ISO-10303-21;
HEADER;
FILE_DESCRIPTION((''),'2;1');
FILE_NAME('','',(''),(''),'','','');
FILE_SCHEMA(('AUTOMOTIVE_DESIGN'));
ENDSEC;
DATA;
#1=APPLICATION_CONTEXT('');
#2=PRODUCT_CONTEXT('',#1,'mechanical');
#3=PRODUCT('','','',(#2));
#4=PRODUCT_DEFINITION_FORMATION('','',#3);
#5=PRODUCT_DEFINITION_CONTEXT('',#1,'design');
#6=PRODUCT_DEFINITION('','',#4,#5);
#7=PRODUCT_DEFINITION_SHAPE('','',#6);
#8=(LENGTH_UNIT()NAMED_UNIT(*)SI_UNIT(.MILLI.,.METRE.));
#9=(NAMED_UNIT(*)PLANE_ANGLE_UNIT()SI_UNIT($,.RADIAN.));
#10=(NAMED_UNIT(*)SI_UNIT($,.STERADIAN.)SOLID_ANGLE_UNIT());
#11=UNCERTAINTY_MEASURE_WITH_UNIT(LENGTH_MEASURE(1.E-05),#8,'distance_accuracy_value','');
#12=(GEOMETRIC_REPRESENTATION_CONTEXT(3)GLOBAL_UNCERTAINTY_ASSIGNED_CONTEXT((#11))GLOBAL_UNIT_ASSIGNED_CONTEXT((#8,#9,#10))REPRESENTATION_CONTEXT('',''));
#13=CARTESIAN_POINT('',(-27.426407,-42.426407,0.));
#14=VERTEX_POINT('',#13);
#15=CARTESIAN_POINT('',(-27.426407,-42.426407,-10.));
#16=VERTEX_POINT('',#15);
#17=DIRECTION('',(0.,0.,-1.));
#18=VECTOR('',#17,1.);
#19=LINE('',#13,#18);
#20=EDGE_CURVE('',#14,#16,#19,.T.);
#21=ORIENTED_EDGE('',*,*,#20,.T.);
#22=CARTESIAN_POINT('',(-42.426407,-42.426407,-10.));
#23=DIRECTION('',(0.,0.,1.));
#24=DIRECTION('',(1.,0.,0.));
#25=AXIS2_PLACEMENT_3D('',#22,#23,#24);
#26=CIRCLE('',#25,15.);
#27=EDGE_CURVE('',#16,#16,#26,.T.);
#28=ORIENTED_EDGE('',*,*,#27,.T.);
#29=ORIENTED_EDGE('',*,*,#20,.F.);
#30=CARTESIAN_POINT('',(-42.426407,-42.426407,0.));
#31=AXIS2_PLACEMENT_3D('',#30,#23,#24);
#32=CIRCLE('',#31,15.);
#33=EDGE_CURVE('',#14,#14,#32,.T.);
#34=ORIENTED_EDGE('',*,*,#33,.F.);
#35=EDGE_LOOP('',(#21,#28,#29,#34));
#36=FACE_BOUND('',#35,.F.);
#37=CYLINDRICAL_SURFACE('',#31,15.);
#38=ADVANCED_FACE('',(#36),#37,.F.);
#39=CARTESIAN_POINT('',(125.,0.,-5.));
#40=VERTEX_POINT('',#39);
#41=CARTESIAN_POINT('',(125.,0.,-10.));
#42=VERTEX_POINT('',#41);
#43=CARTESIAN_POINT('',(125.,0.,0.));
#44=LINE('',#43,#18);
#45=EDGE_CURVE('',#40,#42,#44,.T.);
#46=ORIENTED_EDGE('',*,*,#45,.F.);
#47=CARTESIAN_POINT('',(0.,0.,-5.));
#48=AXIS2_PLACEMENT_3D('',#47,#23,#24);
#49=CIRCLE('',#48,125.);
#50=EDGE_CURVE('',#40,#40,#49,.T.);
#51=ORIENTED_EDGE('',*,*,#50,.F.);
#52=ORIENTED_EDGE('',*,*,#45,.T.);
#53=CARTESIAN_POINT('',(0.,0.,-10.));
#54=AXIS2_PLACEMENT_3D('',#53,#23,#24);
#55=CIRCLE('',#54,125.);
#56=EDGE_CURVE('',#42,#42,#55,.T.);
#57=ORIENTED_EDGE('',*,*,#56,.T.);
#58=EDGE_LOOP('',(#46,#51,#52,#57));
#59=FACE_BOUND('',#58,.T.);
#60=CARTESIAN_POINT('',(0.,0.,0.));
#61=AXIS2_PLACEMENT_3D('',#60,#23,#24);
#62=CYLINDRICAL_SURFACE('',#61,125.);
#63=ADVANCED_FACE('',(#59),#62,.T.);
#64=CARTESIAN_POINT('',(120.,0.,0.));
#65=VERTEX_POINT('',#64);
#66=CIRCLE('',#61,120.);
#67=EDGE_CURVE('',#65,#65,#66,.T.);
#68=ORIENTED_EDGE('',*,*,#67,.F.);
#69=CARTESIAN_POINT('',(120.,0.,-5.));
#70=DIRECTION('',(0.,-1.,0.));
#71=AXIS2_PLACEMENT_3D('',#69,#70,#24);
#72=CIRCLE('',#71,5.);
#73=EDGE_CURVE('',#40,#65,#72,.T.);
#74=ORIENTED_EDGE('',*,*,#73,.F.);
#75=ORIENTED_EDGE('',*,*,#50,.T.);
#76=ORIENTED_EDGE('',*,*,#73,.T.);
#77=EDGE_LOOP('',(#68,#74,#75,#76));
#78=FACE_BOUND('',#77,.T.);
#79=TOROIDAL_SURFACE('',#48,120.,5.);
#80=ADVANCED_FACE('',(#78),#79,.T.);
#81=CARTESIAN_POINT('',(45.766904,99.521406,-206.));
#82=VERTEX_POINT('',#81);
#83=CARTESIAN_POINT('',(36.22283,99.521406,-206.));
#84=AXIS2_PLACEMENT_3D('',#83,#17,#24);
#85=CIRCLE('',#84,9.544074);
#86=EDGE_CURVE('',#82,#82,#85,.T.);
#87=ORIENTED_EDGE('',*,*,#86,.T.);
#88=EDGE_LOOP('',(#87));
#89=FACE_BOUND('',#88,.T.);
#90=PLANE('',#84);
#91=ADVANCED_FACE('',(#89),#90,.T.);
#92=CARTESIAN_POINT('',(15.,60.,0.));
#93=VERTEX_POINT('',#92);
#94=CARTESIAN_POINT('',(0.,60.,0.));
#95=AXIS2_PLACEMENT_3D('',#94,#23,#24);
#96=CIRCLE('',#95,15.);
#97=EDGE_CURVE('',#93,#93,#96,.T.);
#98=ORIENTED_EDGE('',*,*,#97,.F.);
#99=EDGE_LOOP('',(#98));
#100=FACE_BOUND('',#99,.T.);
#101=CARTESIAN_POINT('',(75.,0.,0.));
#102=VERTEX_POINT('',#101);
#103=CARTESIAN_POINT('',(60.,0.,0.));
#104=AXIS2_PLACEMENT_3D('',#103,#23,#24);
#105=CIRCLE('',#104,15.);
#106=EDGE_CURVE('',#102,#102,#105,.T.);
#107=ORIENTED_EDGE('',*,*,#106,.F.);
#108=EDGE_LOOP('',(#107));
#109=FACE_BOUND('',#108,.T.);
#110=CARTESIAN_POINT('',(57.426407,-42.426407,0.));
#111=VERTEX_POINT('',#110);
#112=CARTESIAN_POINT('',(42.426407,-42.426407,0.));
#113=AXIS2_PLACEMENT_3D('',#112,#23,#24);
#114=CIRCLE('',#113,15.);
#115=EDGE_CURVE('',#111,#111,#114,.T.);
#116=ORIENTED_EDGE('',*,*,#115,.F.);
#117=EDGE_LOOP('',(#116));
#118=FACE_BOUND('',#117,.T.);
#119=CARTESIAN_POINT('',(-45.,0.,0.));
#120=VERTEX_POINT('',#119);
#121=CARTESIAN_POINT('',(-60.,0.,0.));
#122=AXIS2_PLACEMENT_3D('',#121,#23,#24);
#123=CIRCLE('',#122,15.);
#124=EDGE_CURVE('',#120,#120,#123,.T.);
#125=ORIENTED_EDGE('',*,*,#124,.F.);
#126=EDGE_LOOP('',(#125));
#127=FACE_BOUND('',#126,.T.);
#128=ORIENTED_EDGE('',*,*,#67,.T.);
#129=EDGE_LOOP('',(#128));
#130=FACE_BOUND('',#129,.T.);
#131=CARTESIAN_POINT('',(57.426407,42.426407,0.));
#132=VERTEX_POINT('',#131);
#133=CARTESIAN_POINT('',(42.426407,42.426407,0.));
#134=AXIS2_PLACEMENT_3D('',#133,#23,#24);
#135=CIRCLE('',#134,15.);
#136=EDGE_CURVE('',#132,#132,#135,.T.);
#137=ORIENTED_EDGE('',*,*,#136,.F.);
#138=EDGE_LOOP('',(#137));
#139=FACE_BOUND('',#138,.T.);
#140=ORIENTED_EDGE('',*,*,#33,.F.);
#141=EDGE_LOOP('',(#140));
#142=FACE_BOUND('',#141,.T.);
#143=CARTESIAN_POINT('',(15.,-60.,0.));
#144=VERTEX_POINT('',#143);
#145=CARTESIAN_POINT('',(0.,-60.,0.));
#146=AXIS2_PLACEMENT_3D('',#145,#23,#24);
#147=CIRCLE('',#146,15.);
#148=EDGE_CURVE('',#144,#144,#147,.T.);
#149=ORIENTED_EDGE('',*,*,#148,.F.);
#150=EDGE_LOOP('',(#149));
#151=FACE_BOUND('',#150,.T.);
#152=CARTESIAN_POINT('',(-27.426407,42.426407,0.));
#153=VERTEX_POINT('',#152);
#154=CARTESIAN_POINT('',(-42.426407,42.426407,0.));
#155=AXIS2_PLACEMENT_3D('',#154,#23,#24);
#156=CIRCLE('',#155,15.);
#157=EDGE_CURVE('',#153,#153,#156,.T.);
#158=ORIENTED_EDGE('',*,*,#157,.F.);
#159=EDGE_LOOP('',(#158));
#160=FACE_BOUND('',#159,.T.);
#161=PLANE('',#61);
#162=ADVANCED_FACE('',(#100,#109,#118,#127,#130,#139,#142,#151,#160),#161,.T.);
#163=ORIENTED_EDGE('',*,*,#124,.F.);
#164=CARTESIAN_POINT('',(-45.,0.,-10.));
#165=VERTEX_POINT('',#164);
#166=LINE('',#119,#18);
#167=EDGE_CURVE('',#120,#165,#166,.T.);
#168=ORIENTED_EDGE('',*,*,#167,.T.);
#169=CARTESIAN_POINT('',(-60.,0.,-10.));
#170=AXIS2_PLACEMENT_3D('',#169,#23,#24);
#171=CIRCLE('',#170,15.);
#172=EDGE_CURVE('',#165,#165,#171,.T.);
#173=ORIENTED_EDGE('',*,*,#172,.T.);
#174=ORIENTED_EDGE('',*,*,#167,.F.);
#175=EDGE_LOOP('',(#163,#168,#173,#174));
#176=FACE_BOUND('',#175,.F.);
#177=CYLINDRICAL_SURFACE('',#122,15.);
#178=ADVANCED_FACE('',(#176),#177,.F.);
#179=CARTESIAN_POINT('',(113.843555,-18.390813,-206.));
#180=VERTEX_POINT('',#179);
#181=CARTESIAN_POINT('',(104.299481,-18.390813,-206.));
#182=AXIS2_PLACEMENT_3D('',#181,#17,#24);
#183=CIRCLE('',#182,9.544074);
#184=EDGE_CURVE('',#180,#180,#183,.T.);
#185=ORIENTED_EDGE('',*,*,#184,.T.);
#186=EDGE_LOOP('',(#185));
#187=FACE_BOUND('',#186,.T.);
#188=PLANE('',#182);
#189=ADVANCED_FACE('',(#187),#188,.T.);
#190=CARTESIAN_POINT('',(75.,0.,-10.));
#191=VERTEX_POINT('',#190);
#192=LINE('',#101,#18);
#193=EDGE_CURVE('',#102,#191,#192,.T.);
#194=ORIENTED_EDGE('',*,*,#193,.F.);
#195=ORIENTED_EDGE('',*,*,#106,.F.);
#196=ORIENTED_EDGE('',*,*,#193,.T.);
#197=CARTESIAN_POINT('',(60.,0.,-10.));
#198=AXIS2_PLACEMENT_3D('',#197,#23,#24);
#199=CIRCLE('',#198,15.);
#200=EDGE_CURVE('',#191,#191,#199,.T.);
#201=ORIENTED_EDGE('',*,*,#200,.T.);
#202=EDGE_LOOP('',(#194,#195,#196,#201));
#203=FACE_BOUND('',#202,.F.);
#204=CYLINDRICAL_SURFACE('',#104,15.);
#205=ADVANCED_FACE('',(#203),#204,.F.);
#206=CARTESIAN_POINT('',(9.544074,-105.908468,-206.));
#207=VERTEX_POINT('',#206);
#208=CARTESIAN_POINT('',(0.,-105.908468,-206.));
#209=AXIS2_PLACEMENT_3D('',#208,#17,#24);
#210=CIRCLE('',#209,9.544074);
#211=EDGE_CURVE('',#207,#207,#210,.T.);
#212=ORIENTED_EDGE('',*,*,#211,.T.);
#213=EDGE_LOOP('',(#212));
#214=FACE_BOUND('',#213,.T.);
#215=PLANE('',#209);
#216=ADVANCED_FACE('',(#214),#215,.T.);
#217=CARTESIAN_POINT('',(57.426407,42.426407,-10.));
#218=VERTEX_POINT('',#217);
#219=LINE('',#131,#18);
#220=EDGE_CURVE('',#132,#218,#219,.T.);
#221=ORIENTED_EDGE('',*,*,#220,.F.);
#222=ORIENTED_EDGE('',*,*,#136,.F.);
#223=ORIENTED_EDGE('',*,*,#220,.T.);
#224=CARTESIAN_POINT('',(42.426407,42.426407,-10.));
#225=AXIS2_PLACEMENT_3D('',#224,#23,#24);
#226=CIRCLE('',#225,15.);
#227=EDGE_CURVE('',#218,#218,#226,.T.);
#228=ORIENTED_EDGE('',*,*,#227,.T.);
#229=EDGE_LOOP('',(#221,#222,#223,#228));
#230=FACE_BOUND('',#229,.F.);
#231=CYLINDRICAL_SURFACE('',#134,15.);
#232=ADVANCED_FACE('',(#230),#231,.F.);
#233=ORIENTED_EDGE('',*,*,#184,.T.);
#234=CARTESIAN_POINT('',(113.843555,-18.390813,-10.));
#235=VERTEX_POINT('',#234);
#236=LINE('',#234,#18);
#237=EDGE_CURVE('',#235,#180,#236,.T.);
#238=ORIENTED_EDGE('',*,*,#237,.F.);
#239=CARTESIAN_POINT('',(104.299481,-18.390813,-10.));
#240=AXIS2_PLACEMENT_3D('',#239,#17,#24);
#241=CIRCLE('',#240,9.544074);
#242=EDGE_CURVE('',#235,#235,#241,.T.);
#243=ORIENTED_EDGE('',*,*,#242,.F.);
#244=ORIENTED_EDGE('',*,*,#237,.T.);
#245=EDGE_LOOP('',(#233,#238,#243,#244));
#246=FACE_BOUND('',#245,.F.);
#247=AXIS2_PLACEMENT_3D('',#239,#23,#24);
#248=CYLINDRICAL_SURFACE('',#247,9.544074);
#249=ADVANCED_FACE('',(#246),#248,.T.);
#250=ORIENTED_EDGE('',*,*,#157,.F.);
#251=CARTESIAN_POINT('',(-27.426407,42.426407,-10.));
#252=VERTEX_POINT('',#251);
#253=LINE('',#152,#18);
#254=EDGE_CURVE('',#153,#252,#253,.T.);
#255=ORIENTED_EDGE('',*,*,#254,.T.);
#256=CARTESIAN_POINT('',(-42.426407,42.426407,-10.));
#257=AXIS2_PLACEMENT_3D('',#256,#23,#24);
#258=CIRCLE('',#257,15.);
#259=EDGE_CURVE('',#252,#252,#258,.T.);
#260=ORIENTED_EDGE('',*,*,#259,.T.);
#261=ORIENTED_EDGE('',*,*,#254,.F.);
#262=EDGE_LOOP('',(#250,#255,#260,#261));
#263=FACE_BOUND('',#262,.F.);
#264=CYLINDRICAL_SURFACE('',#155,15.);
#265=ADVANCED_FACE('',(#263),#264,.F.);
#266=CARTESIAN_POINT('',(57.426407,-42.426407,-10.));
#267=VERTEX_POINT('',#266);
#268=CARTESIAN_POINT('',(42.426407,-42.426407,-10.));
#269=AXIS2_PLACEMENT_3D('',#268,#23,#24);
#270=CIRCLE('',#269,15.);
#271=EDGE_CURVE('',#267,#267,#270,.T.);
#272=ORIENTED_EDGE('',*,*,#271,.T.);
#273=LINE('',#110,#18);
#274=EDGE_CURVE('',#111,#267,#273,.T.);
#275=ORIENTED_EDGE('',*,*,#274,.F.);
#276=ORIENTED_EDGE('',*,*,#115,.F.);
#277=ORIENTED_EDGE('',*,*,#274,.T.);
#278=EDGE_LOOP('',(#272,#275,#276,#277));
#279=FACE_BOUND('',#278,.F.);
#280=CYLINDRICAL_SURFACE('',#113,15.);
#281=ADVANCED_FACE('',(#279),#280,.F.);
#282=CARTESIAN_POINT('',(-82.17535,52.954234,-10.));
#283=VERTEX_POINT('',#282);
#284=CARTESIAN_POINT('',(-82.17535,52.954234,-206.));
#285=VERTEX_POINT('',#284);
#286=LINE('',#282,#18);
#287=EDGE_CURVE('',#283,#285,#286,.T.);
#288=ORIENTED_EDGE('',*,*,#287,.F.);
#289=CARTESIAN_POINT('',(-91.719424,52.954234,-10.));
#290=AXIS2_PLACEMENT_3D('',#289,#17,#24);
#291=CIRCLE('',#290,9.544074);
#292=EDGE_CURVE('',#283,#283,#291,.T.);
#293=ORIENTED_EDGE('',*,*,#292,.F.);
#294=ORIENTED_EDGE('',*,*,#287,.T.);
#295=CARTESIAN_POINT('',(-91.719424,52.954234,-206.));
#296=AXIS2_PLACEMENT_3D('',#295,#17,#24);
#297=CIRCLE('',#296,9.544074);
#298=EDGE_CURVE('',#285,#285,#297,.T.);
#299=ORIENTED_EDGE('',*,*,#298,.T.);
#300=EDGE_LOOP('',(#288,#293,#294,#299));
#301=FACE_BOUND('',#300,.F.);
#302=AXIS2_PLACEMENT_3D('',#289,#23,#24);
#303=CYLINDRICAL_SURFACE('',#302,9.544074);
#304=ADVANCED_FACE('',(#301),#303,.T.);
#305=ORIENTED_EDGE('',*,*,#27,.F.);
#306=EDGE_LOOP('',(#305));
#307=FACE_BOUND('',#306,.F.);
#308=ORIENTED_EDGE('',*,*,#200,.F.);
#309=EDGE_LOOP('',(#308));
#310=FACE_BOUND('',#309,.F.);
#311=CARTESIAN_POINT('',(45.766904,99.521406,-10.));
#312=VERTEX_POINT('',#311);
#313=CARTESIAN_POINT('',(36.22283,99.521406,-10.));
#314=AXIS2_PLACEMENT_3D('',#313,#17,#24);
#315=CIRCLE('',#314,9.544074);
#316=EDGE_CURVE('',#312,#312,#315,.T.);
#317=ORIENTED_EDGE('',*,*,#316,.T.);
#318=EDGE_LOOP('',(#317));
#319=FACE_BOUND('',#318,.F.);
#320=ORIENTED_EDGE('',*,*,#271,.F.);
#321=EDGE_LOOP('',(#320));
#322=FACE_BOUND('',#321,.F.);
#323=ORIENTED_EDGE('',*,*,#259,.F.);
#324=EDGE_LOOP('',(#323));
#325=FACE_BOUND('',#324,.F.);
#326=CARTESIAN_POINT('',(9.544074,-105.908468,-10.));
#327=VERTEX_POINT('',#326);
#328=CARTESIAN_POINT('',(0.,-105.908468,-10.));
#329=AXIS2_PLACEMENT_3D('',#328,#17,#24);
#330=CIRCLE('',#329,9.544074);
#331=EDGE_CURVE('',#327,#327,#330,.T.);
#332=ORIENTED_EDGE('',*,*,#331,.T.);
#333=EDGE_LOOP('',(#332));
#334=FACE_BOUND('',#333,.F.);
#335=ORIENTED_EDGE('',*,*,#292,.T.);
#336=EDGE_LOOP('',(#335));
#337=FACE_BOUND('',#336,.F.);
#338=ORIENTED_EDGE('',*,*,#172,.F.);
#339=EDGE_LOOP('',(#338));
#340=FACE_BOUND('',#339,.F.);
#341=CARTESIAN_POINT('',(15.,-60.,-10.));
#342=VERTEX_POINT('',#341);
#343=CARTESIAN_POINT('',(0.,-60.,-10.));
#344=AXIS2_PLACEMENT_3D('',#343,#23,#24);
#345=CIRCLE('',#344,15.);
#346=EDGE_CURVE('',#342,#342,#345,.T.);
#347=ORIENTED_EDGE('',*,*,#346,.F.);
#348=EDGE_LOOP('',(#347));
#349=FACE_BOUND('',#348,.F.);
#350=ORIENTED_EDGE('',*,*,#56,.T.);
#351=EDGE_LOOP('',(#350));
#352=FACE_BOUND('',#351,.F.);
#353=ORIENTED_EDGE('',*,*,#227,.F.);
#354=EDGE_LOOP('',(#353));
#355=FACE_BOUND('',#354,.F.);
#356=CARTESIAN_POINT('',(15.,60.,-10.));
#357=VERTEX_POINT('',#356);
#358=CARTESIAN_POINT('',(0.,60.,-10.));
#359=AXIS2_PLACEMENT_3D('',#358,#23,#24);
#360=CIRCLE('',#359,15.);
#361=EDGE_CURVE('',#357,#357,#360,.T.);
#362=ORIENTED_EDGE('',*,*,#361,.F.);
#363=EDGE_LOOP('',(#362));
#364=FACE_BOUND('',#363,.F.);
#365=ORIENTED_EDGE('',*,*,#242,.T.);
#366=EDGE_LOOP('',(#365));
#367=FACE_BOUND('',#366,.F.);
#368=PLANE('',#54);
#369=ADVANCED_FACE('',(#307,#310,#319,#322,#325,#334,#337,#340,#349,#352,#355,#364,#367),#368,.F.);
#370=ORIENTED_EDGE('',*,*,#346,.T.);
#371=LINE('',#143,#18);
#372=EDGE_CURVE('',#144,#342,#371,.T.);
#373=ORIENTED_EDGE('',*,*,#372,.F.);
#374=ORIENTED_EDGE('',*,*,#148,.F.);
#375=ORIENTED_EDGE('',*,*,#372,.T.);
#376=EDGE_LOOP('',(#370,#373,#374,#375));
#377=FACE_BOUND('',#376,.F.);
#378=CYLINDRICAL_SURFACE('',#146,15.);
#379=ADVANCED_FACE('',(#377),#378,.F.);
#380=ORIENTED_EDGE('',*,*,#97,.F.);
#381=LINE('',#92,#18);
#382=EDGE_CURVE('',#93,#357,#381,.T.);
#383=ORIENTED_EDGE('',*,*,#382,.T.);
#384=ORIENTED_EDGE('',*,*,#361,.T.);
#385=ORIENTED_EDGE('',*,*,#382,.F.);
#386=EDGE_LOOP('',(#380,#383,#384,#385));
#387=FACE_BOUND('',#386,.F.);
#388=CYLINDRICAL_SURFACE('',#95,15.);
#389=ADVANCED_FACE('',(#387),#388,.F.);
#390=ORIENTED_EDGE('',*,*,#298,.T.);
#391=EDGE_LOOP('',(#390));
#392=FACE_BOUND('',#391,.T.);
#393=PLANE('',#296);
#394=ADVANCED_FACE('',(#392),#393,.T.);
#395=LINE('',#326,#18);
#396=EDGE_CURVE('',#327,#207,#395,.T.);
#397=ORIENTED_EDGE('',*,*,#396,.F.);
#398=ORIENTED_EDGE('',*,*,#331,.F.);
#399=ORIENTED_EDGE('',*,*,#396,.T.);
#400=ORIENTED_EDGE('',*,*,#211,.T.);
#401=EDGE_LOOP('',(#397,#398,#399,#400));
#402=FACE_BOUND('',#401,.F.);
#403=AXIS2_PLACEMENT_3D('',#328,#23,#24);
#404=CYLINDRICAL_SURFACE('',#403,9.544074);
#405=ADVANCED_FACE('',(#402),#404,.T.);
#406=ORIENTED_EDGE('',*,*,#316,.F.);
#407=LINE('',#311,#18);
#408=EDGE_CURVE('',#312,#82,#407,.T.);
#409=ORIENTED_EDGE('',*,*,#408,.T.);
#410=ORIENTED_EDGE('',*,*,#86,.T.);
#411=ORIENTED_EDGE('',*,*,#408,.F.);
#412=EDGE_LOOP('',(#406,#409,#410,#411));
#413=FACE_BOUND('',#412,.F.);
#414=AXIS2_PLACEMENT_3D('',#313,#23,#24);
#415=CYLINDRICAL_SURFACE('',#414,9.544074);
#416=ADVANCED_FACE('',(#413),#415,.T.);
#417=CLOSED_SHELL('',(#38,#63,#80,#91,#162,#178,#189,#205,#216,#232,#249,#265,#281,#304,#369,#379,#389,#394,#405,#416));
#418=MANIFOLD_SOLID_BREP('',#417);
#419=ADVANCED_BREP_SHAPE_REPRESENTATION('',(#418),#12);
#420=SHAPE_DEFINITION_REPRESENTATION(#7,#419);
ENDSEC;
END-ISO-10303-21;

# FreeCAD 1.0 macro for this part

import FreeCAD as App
import Part
import Sketcher
from FreeCAD import Vector


def edges_at(feature, points):
    """Names of the edges that pass closest to the given points."""
    edges = feature.Shape.Edges
    near = lambda p: min(range(len(edges)), key=lambda i: edges[i].distToShape(Part.Vertex(*p))[0])
    return sorted({f"Edge{near(p) + 1}" for p in points})

doc = App.newDocument("Part")
body = doc.addObject("PartDesign::Body", "Body")

sketch1 = body.newObject("Sketcher::SketchObject", "Sketch")
sketch1.AttachmentSupport = (doc.getObject("XY_Plane"), [""])
sketch1.MapMode = "FlatFace"
sketch1.addGeometry(Part.Circle(Vector(0, 0, 0), Vector(0, 0, 1), 125), False)
sketch1.addConstraint([
    Sketcher.Constraint("Coincident", 0, 3, -1, 1),
    Sketcher.Constraint("Diameter", 0, 250.0),
])
pad1 = body.newObject("PartDesign::Pad", "Pad")
pad1.Profile = sketch1
pad1.Length = 10
pad1.Reversed = True

sketch2 = body.newObject("Sketcher::SketchObject", "Sketch001")
sketch2.AttachmentSupport = (doc.getObject("XY_Plane"), [""])
sketch2.MapMode = "FlatFace"
sketch2.addGeometry([
    Part.Circle(Vector(-42, 42, 0), Vector(0, 0, 1), 15),
    Part.Circle(Vector(0, 60, 0), Vector(0, 0, 1), 15),
    Part.Circle(Vector(42, 42, 0), Vector(0, 0, 1), 15),
    Part.Circle(Vector(60, 0, 0), Vector(0, 0, 1), 15),
    Part.Circle(Vector(42, -42, 0), Vector(0, 0, 1), 15),
    Part.Circle(Vector(0, -60, 0), Vector(0, 0, 1), 15),
    Part.Circle(Vector(-42, -42, 0), Vector(0, 0, 1), 15),
    Part.Circle(Vector(-60, 0, 0), Vector(0, 0, 1), 15),
], False)
sketch2.addConstraint([
    Sketcher.Constraint("Equal", 0, 1),
    Sketcher.Constraint("Equal", 1, 2),
    Sketcher.Constraint("Equal", 2, 3),
    Sketcher.Constraint("Equal", 3, 4),
    Sketcher.Constraint("Equal", 4, 5),
    Sketcher.Constraint("Equal", 5, 6),
    Sketcher.Constraint("Equal", 6, 7),
    Sketcher.Constraint("Symmetric", 0, 3, 4, 3, -1, 1),
    Sketcher.Constraint("Symmetric", 1, 3, 5, 3, -1, 1),
    Sketcher.Constraint("Symmetric", 2, 3, 6, 3, -1, 1),
    Sketcher.Constraint("Symmetric", 3, 3, 7, 3, -1, 1),
    Sketcher.Constraint("Symmetric", 0, 3, 2, 3, -2),
    Sketcher.Constraint("PointOnObject", 1, 3, -2),
    Sketcher.Constraint("PointOnObject", 3, 3, -1),
    Sketcher.Constraint("Diameter", 0, 30.0),
    Sketcher.Constraint("DistanceY", -1, 1, 1, 3, 60.0),
    Sketcher.Constraint("DistanceX", -1, 1, 3, 3, 60.0),
    Sketcher.Constraint("DistanceX", 0, 3, -1, 1, 42.426407),
    Sketcher.Constraint("DistanceY", -1, 1, 0, 3, 42.426407),
])
pocket1 = body.newObject("PartDesign::Pocket", "Pocket")
pocket1.Profile = sketch2
pocket1.Length = 10
doc.recompute()

fillet = body.newObject("PartDesign::Fillet", "Fillet")
fillet.Base = (pocket1, edges_at(pocket1, [(-125, 0, 0)]))
fillet.Radius = 5

sketch3 = body.newObject("Sketcher::SketchObject", "Sketch002")
sketch3.AttachmentSupport = (doc.getObject("XY_Plane"), [""])
sketch3.MapMode = "FlatFace"
sketch3.AttachmentOffset = App.Placement(Vector(0, 0, -10), App.Rotation())
sketch3.addGeometry([
    Part.Circle(Vector(0, -106, 0), Vector(0, 0, 1), 10),
    Part.Circle(Vector(104, -18, 0), Vector(0, 0, 1), 10),
    Part.Circle(Vector(36, 100, 0), Vector(0, 0, 1), 10),
    Part.Circle(Vector(-92, 53, 0), Vector(0, 0, 1), 10),
], False)
sketch3.addConstraint([
    Sketcher.Constraint("Equal", 0, 1),
    Sketcher.Constraint("Equal", 1, 2),
    Sketcher.Constraint("Equal", 2, 3),
    Sketcher.Constraint("PointOnObject", 0, 3, -2),
    Sketcher.Constraint("Diameter", 0, 19.088148),
    Sketcher.Constraint("DistanceY", 0, 3, -1, 1, 105.908468),
    Sketcher.Constraint("DistanceX", -1, 1, 1, 3, 104.299481),
    Sketcher.Constraint("DistanceX", -1, 1, 2, 3, 36.22283),
    Sketcher.Constraint("DistanceY", 1, 3, 2, 3, 117.912219),
    Sketcher.Constraint("DistanceY", 1, 3, -1, 1, 18.390813),
    Sketcher.Constraint("DistanceX", 3, 3, -1, 1, 91.719424),
    Sketcher.Constraint("DistanceY", -1, 1, 3, 3, 52.954234),
])
pad2 = body.newObject("PartDesign::Pad", "Pad001")
pad2.Profile = sketch3
pad2.Length = 196
pad2.Reversed = True

doc.recompute()
